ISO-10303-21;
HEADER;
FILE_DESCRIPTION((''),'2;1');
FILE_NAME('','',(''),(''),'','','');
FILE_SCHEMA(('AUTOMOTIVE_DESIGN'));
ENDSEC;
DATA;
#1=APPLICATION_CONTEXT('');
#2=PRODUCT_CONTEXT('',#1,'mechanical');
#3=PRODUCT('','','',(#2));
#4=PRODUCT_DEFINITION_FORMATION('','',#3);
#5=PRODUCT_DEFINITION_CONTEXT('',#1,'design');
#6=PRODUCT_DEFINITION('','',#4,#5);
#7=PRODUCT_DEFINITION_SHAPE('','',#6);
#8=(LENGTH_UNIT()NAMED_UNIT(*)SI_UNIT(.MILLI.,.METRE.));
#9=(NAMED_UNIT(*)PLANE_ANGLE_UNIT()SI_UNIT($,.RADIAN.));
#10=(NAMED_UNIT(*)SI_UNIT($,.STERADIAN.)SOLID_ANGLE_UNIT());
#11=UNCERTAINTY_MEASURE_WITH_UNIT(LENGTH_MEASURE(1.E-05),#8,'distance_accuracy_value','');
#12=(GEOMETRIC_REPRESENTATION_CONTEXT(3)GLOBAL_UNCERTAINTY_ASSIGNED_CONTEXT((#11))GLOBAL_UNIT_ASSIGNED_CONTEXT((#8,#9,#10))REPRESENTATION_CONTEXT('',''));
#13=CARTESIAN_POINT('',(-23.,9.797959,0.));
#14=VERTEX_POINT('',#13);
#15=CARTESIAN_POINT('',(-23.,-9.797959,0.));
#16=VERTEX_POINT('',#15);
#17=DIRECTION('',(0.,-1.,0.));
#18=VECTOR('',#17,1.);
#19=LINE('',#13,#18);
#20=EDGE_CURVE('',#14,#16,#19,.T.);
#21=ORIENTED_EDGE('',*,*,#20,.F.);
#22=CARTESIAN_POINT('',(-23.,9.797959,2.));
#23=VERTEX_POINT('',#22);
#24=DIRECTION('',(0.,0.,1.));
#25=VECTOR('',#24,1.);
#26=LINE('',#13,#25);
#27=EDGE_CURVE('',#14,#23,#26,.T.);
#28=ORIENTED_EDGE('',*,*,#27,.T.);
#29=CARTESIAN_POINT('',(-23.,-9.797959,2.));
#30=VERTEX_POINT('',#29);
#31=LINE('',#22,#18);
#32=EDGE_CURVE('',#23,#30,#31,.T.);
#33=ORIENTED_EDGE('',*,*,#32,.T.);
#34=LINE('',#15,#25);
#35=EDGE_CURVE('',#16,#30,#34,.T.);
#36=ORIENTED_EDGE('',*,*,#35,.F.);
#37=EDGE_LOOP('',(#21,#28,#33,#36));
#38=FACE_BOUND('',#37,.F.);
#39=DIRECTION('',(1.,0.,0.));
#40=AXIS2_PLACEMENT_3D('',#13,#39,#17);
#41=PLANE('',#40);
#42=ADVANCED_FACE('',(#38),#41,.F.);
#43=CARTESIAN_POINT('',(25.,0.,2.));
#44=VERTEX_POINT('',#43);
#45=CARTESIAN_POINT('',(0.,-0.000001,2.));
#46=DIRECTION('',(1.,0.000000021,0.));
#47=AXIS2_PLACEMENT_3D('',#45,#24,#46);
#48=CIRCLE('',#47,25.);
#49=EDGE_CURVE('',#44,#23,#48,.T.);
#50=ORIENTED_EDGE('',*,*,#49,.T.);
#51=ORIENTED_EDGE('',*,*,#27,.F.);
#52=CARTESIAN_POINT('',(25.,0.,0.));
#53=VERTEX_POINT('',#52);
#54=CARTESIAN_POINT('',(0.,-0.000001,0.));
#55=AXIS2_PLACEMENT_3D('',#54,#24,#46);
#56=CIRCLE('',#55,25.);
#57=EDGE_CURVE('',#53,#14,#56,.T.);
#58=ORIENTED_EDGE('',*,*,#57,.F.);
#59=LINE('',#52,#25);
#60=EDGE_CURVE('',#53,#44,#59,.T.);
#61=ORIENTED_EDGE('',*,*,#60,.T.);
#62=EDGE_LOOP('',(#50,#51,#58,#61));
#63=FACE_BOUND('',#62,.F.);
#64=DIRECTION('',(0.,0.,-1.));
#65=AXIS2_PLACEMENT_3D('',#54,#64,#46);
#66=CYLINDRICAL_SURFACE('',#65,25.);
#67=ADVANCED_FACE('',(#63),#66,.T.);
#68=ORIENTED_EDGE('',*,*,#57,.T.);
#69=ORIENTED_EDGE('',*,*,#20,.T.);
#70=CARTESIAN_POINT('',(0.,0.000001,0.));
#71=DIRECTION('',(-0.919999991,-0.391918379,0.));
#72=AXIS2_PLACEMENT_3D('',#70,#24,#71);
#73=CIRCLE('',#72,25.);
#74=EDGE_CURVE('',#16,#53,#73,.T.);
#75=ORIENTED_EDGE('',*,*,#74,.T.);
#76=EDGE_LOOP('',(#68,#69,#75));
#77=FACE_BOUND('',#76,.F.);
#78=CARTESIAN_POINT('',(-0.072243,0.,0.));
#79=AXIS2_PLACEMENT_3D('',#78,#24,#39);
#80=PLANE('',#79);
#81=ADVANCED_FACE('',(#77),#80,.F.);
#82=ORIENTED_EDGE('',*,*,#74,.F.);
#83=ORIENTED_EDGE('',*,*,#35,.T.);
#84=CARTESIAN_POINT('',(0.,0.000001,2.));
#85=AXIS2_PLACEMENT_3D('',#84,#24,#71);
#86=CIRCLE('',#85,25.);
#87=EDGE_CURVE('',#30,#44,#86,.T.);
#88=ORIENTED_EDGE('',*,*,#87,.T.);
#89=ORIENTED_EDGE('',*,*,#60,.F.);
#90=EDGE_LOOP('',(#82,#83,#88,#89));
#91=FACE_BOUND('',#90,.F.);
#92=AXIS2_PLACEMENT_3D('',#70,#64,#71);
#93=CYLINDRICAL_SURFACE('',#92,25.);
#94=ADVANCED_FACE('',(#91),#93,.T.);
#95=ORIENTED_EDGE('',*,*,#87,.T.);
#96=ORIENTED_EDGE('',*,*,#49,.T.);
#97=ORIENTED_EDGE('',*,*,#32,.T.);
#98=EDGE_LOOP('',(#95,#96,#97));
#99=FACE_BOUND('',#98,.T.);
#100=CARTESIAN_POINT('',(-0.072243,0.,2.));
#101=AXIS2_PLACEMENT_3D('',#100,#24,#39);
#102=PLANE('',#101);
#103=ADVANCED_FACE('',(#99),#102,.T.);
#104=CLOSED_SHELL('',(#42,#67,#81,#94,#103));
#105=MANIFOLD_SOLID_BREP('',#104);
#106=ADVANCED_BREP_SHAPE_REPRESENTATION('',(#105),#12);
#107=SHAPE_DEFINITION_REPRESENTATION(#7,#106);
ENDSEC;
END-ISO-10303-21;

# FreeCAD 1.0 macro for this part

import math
import FreeCAD as App
import Part
import Sketcher

V = App.Vector
Q = App.Units.Quantity

doc = App.newDocument("Part")
body = doc.addObject("PartDesign::Body", "Body")

sketch1 = body.newObject("Sketcher::SketchObject", "Sketch")
sketch1.AttachmentSupport = (doc.getObject("XY_Plane"), [""])
sketch1.MapMode = "FlatFace"
sketch1.addGeometry(Part.ArcOfCircle(Part.Circle(V(0, 0, 0), V(0, 0, 1), 25), math.radians(-157), math.radians(0)), False)
sketch1.addGeometry(Part.ArcOfCircle(Part.Circle(V(0, 0, 0), V(0, 0, 1), 25), math.radians(0), math.radians(157)), False)
sketch1.addGeometry(Part.LineSegment(V(-23, 10, 0), V(-23, -10, 0)), False)
sketch1.addConstraint(Sketcher.Constraint("Tangent", 0, 2, 1, 1))
sketch1.addConstraint(Sketcher.Constraint("Coincident", 1, 2, 2, 1))
sketch1.addConstraint(Sketcher.Constraint("Coincident", 2, 2, 0, 1))
sketch1.addConstraint(Sketcher.Constraint("Vertical", 2))
sketch1.addConstraint(Sketcher.Constraint("Coincident", 0, 3, -1, 1))
sketch1.addConstraint(Sketcher.Constraint("Equal", 0, 1))
sketch1.addConstraint(Sketcher.Constraint("PointOnObject", 0, 2, -1))
sketch1.addConstraint(Sketcher.Constraint("Radius", 0, Q("25 mm")))
sketch1.addConstraint(Sketcher.Constraint("DistanceX", 1, 2, -1, 1, Q("23 mm")))
pad1 = body.newObject("PartDesign::Pad", "Pad")
pad1.Profile = sketch1
pad1.Length = 2

doc.recompute()
